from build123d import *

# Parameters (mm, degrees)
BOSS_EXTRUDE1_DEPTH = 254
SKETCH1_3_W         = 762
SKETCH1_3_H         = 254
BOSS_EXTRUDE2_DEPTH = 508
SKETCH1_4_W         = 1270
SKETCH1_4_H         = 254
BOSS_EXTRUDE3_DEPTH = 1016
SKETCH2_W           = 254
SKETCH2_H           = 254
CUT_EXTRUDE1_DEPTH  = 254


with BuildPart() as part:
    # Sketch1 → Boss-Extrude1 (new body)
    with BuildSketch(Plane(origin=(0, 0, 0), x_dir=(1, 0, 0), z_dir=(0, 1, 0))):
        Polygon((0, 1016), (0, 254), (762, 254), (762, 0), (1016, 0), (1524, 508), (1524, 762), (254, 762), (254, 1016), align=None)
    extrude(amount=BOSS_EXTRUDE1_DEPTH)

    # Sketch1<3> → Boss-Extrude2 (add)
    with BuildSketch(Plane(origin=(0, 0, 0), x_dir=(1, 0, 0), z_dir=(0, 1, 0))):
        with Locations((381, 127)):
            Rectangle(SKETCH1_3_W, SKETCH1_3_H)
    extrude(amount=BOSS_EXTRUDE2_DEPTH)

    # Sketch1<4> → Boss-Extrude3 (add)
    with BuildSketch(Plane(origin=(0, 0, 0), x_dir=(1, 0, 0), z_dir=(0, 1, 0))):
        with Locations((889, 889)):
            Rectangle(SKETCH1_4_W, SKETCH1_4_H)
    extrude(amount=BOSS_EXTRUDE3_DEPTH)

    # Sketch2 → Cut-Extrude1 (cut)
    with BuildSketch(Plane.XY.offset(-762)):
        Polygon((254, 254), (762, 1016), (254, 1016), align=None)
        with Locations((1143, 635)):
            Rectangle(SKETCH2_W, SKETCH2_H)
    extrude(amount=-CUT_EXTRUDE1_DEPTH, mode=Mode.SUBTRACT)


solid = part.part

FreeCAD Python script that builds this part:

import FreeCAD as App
import Part
import Sketcher
Q = App.Units.Quantity


def add_polygon(sketch, points):
    """Adds a closed chain of lines whose ends are joined by coincident constraints."""
    first, n = sketch.GeometryCount, len(points)
    for a, b in zip(points, points[1:] + points[:1]):
        sketch.addGeometry(Part.LineSegment(App.Vector(*a, 0), App.Vector(*b, 0)), False)
    for i in range(n):
        sketch.addConstraint(Sketcher.Constraint("Coincident", first + i, 2, first + (i + 1) % n, 1))

doc = App.newDocument("Part")
body = doc.addObject("PartDesign::Body", "Body")

sketch1 = body.newObject("Sketcher::SketchObject", "Sketch")
sketch1.AttachmentSupport = (doc.getObject("XZ_Plane"), [""])
sketch1.MapMode = "FlatFace"
add_polygon(sketch1, [(0, -1016), (0, -254), (762, -254), (762, 0), (1016, 0), (1524, -508), (1524, -762), (254, -762), (254, -1016)])
sketch1.addConstraint(Sketcher.Constraint("Vertical", 0))
sketch1.addConstraint(Sketcher.Constraint("Horizontal", 1))
sketch1.addConstraint(Sketcher.Constraint("Vertical", 2))
sketch1.addConstraint(Sketcher.Constraint("Horizontal", 3))
sketch1.addConstraint(Sketcher.Constraint("Vertical", 5))
sketch1.addConstraint(Sketcher.Constraint("Horizontal", 6))
sketch1.addConstraint(Sketcher.Constraint("Vertical", 7))
sketch1.addConstraint(Sketcher.Constraint("Horizontal", 8))
sketch1.addConstraint(Sketcher.Constraint("PointOnObject", 0, 2, -2))
sketch1.addConstraint(Sketcher.Constraint("PointOnObject", 2, 2, -1))
sketch1.addConstraint(Sketcher.Constraint("Equal", 3, 8))
sketch1.addConstraint(Sketcher.Constraint("Equal", 1, 0))
sketch1.addConstraint(Sketcher.Constraint("Equal", 8, 2))
sketch1.addConstraint(Sketcher.Constraint("Equal", 2, 5))
sketch1.addConstraint(Sketcher.Constraint("Equal", 5, 7))
sketch1.addConstraint(Sketcher.Constraint("DistanceX", 1, 1, 1, 2, Q("30 in")))
sketch1.addConstraint(Sketcher.Constraint("DistanceX", 3, 1, 3, 2, Q("10 in")))
sketch1.addConstraint(Sketcher.Constraint("DistanceX", 6, 2, 6, 1, Q("50 in")))
pad1 = body.newObject("PartDesign::Pad", "Pad")
pad1.Profile = sketch1
pad1.Length = Q("10 in")
pad1.Reversed = True

sketch2 = body.newObject("Sketcher::SketchObject", "Sketch001")
sketch2.AttachmentSupport = (doc.getObject("XZ_Plane"), [""])
sketch2.MapMode = "FlatFace"
add_polygon(sketch2, [(0, -254), (0, 0), (762, 0), (762, -254)])
sketch2.addConstraint(Sketcher.Constraint("Vertical", 0))
sketch2.addConstraint(Sketcher.Constraint("Horizontal", 1))
sketch2.addConstraint(Sketcher.Constraint("Vertical", 2))
sketch2.addConstraint(Sketcher.Constraint("Horizontal", 3))
sketch2.addConstraint(Sketcher.Constraint("Coincident", 0, 2, -1, 1))
sketch2.addConstraint(Sketcher.Constraint("DistanceX", 1, 1, 1, 2, Q("30 in")))
sketch2.addConstraint(Sketcher.Constraint("DistanceY", 0, 1, 0, 2, Q("10 in")))
pad2 = body.newObject("PartDesign::Pad", "Pad001")
pad2.Profile = sketch2
pad2.Length = Q("20 in")
pad2.Reversed = True

sketch3 = body.newObject("Sketcher::SketchObject", "Sketch002")
sketch3.AttachmentSupport = (doc.getObject("XZ_Plane"), [""])
sketch3.MapMode = "FlatFace"
add_polygon(sketch3, [(254, -1016), (254, -762), (1524, -762), (1524, -1016)])
sketch3.addConstraint(Sketcher.Constraint("Vertical", 0))
sketch3.addConstraint(Sketcher.Constraint("Horizontal", 1))
sketch3.addConstraint(Sketcher.Constraint("Vertical", 2))
sketch3.addConstraint(Sketcher.Constraint("Horizontal", 3))
sketch3.addConstraint(Sketcher.Constraint("DistanceX", 1, 1, 1, 2, Q("50 in")))
sketch3.addConstraint(Sketcher.Constraint("DistanceY", 0, 1, 0, 2, Q("10 in")))
sketch3.addConstraint(Sketcher.Constraint("DistanceX", -1, 1, 0, 2, Q("10 in")))
sketch3.addConstraint(Sketcher.Constraint("DistanceY", 0, 2, -1, 1, Q("30 in")))
pad3 = body.newObject("PartDesign::Pad", "Pad002")
pad3.Profile = sketch3
pad3.Length = Q("40 in")
pad3.Reversed = True

sketch4 = body.newObject("Sketcher::SketchObject", "Sketch003")
sketch4.AttachmentSupport = (doc.getObject("XY_Plane"), [""])
sketch4.MapMode = "FlatFace"
sketch4.AttachmentOffset = App.Placement(App.Vector(0, 0, -30 * 25.4), App.Rotation())
add_polygon(sketch4, [(254, 254), (762, 1016), (254, 1016)])
add_polygon(sketch4, [(1016, 762), (1016, 508), (1270, 508), (1270, 762)])
sketch4.addConstraint(Sketcher.Constraint("Horizontal", 1))
sketch4.addConstraint(Sketcher.Constraint("Vertical", 2))
sketch4.addConstraint(Sketcher.Constraint("Vertical", 3))
sketch4.addConstraint(Sketcher.Constraint("Horizontal", 4))
sketch4.addConstraint(Sketcher.Constraint("Vertical", 5))
sketch4.addConstraint(Sketcher.Constraint("Horizontal", 6))
sketch4.addConstraint(Sketcher.Constraint("Equal", 6, 3))
sketch4.addConstraint(Sketcher.Constraint("DistanceX", 1, 2, 1, 1, Q("20 in")))
sketch4.addConstraint(Sketcher.Constraint("DistanceX", 4, 1, 4, 2, Q("10 in")))
sketch4.addConstraint(Sketcher.Constraint("DistanceY", 2, 2, 2, 1, Q("30 in")))
sketch4.addConstraint(Sketcher.Constraint("DistanceX", -1, 1, 0, 2, Q("30 in")))
sketch4.addConstraint(Sketcher.Constraint("DistanceY", -1, 1, 0, 2, Q("40 in")))
sketch4.addConstraint(Sketcher.Constraint("DistanceX", -1, 1, 3, 2, Q("40 in")))
sketch4.addConstraint(Sketcher.Constraint("DistanceY", -1, 1, 3, 2, Q("20 in")))
pocket1 = body.newObject("PartDesign::Pocket", "Pocket")
pocket1.Profile = sketch4
pocket1.Length = Q("10 in")

doc.recompute()
